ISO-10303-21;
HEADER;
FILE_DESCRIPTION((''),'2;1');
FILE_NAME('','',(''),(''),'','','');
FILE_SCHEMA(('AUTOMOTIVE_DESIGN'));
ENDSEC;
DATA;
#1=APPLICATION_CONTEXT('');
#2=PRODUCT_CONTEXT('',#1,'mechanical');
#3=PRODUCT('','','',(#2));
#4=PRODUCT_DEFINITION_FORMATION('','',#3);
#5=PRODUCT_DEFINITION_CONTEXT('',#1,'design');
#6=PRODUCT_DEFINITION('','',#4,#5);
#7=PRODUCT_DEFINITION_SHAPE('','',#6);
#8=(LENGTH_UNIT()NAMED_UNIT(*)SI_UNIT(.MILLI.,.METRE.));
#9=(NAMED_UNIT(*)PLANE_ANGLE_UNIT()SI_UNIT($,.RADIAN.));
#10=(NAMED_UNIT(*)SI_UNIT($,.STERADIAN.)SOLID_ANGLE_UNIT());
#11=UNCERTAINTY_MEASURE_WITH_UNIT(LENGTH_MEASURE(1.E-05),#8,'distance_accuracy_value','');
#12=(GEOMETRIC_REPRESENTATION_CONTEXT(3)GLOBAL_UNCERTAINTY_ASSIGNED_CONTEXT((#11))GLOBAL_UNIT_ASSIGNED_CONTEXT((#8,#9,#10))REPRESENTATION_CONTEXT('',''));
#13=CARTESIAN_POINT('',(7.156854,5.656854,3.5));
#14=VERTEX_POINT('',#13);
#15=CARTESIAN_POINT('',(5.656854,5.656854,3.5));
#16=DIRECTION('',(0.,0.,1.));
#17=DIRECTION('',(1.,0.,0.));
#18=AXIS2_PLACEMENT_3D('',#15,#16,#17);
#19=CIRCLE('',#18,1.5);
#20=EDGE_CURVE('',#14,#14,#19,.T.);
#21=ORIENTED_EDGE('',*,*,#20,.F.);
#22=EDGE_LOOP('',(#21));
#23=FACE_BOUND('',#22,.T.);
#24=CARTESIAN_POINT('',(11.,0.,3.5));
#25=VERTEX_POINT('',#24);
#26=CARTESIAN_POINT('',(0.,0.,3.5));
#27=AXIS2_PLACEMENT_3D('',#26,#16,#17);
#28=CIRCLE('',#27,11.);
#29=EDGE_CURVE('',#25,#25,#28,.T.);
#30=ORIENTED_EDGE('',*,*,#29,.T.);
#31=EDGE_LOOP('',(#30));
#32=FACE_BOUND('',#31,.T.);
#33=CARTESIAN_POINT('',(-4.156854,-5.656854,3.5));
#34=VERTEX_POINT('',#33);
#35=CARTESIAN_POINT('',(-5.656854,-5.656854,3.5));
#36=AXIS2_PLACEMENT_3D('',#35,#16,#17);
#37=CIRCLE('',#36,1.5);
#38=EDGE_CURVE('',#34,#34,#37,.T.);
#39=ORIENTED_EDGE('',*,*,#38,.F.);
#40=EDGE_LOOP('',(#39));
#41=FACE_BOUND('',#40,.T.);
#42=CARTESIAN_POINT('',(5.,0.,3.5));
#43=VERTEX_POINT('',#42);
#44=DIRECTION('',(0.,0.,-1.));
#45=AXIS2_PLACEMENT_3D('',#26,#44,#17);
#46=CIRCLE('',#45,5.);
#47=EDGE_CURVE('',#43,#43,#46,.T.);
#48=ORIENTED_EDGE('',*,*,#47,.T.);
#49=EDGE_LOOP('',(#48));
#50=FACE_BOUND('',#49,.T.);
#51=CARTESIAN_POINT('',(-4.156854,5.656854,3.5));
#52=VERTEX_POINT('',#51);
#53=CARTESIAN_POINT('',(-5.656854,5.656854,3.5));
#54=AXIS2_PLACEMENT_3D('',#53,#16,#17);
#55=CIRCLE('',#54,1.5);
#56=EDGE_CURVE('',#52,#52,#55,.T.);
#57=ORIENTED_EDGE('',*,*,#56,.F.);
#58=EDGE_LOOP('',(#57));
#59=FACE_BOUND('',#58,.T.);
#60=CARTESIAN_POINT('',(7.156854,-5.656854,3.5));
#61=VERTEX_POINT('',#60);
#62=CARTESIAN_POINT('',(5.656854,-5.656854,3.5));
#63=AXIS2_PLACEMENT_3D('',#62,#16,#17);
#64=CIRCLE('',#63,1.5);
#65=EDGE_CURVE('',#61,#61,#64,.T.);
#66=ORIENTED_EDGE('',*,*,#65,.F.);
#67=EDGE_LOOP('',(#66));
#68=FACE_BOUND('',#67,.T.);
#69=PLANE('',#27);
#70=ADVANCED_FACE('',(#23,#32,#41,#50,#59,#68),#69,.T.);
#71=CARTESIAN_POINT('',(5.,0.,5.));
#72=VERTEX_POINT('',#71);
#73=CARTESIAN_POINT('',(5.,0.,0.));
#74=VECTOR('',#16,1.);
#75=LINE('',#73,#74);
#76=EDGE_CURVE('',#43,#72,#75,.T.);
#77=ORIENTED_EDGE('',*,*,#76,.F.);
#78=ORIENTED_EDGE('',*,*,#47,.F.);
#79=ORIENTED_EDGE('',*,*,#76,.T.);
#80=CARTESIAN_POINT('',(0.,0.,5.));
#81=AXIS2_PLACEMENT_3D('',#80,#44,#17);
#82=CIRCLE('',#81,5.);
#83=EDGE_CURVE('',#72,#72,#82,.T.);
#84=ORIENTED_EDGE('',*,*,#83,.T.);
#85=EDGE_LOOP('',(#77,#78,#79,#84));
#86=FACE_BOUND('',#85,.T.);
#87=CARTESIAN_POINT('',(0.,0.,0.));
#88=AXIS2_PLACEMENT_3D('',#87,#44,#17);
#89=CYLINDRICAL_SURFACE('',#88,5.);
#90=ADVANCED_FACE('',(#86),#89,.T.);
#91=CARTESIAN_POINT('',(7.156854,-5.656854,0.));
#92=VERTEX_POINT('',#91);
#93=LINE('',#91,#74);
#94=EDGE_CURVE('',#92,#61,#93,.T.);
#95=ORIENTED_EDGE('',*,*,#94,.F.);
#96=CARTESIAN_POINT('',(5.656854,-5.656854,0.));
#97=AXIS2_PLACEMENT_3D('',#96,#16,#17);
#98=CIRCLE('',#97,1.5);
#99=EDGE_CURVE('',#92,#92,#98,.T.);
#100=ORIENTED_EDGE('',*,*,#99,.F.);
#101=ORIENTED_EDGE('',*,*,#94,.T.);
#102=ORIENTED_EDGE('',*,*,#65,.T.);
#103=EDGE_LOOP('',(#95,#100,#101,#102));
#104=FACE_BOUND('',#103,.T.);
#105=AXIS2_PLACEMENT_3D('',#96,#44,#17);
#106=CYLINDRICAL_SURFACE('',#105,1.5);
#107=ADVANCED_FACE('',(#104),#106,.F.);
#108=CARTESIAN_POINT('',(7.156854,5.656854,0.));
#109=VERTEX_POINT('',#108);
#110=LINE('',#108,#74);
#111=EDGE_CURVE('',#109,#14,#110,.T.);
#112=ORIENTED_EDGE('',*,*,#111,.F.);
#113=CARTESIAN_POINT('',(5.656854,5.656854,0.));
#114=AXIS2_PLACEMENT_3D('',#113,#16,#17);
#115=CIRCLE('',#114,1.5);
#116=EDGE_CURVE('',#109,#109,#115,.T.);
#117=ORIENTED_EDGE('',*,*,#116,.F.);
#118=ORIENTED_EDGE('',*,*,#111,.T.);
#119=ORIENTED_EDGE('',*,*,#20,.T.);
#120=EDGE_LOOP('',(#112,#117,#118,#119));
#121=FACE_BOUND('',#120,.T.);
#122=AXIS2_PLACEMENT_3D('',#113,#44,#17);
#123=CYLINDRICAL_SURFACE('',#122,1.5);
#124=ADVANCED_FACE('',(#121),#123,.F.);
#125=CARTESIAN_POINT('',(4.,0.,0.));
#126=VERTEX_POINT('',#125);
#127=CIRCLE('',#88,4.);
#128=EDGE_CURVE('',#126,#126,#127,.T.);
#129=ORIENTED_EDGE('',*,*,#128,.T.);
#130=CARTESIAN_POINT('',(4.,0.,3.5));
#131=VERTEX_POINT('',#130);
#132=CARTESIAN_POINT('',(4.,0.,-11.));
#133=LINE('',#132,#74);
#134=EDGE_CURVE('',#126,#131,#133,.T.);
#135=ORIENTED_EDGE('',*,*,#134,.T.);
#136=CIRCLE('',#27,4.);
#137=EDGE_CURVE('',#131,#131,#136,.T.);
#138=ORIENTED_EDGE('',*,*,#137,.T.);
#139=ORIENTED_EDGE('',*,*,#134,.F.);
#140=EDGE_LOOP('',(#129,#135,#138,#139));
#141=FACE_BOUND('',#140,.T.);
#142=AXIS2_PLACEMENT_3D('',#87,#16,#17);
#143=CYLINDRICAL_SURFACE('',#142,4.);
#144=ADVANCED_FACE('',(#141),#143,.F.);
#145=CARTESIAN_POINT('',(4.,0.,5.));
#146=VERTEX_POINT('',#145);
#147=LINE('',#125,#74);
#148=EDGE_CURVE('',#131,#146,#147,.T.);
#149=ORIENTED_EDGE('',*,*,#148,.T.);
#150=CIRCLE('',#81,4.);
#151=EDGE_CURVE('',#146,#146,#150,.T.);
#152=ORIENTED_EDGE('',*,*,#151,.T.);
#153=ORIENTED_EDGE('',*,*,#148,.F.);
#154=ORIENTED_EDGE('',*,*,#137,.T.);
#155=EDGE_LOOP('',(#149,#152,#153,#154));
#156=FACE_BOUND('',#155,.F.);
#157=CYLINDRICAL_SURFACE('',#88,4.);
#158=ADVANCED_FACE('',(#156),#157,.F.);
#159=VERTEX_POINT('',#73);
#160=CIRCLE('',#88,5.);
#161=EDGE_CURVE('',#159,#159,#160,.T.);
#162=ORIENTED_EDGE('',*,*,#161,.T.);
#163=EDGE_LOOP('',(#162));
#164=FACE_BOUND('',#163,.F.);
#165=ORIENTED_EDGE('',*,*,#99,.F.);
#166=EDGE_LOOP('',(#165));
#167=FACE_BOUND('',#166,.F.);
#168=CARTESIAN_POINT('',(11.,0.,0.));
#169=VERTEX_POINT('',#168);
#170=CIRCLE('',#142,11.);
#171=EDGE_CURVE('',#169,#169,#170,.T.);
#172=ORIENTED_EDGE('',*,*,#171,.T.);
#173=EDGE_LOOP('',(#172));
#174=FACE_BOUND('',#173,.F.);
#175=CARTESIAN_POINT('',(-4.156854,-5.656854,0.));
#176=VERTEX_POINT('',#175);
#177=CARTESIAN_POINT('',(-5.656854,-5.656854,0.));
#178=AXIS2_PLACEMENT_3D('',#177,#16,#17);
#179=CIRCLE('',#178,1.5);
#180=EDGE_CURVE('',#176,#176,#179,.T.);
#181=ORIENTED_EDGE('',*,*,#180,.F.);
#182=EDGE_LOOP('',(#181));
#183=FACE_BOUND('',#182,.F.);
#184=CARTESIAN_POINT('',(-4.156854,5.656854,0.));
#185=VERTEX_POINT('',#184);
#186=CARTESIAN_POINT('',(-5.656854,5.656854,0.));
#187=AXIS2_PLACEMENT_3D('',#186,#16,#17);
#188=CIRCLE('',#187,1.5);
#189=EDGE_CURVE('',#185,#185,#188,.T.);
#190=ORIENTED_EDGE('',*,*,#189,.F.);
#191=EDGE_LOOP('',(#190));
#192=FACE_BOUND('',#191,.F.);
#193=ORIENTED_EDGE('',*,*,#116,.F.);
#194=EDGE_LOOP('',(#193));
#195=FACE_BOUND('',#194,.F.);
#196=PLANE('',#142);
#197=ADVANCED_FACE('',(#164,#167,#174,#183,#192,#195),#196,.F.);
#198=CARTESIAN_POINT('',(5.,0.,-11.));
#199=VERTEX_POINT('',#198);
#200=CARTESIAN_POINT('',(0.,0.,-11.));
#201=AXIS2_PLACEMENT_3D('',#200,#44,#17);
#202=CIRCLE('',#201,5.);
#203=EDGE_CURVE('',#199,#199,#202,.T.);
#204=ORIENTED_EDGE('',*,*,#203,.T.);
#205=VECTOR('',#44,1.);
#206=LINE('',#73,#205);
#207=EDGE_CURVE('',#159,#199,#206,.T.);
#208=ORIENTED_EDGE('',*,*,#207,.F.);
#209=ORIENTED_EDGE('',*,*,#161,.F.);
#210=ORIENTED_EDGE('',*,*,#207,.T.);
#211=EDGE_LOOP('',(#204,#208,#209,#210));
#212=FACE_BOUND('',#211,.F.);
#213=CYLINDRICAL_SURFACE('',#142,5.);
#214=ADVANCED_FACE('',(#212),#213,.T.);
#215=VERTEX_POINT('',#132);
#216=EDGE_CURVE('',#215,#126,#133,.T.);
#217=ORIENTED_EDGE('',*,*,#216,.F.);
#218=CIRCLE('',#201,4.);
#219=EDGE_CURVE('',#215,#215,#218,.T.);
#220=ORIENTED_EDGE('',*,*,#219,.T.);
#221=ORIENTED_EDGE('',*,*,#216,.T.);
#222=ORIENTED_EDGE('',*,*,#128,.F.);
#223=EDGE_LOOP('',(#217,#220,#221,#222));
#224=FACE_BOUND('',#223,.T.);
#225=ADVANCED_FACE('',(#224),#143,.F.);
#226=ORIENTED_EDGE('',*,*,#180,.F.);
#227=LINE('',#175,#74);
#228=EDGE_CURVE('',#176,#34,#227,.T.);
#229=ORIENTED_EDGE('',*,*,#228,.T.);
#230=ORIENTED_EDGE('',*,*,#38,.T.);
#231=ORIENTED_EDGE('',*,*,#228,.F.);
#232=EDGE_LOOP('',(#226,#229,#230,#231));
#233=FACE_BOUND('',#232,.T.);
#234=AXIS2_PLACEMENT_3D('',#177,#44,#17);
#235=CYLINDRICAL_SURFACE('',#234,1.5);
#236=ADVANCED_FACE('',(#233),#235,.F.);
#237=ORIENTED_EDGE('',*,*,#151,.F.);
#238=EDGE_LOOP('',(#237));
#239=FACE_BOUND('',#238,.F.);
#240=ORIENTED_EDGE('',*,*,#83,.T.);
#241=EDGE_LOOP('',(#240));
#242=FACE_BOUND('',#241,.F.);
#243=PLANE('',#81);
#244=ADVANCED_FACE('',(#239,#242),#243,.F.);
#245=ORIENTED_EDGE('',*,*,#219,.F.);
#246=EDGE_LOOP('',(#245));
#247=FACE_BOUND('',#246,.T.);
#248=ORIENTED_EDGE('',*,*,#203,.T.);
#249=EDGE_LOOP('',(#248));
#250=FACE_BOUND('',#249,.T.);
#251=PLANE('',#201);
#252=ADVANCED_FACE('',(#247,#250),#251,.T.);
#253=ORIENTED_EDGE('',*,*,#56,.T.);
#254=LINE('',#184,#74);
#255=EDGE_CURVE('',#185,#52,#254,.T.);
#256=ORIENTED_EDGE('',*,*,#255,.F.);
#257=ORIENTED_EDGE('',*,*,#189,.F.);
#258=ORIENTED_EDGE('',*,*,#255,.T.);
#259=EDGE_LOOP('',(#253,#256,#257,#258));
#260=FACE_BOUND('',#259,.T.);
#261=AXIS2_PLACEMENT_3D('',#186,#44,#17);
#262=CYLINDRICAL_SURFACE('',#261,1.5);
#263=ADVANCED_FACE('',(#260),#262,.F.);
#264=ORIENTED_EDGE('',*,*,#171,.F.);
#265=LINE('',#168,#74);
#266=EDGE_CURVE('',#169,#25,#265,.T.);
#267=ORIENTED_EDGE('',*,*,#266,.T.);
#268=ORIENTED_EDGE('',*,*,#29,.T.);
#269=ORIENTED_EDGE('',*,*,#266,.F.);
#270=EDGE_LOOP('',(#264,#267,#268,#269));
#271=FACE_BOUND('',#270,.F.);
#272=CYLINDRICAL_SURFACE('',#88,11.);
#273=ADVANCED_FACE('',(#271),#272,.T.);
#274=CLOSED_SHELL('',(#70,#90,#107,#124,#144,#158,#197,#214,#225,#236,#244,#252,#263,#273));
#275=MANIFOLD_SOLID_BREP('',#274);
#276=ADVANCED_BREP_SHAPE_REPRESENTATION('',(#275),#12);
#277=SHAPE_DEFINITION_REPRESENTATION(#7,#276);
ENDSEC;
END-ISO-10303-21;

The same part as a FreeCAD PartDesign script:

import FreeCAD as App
import Part
import Sketcher

V = App.Vector

doc = App.newDocument("Part")
body = doc.addObject("PartDesign::Body", "Body")

# Sketch on XY plane
sketch1 = doc.addObject("Sketcher::SketchObject", "Sketch")
body.addObject(sketch1)
sketch1.AttachmentSupport = (doc.XY_Plane, [""])
sketch1.MapMode = "FlatFace"
sketch1.addGeometry([
    Part.Circle(V(0, 0, 0), V(0, 0, 1), 11),  # 0
    Part.Circle(V(-5.656854, -5.656854, 0), V(0, 0, 1), 1.5),  # 1
    Part.Circle(V(5.656854, -5.656854, 0), V(0, 0, 1), 1.5),  # 2
    Part.Circle(V(-5.656854, 5.656854, 0), V(0, 0, 1), 1.5),  # 3
    Part.Circle(V(0, 0, 0), V(0, 0, 1), 4),  # 4
    Part.Circle(V(5.656854, 5.656854, 0), V(0, 0, 1), 1.5),  # 5
], False)
sketch1.addConstraint([
    Sketcher.Constraint("Coincident", 0, 3, -1, 1),
    Sketcher.Constraint("Coincident", 4, 3, -1, 1),
    Sketcher.Constraint("Equal", 1, 2),
    Sketcher.Constraint("Equal", 2, 3),
    Sketcher.Constraint("Equal", 3, 5),
    Sketcher.Constraint("Symmetric", 2, 3, 3, 3, -1, 1),
    Sketcher.Constraint("Symmetric", 1, 3, 5, 3, -1, 1),
    Sketcher.Constraint("Symmetric", 1, 3, 2, 3, -2),
    Sketcher.Constraint("Diameter", 0, 22.0),
    Sketcher.Constraint("Diameter", 1, 3.0),
    Sketcher.Constraint("Diameter", 4, 8.0),
    Sketcher.Constraint("DistanceX", 1, 3, -1, 1, 5.656854),
    Sketcher.Constraint("DistanceY", 1, 3, -1, 1, 5.656854),
])
pad1 = doc.addObject("PartDesign::Pad", "Pad")
body.addObject(pad1)
pad1.Profile = sketch1
pad1.Length = 3.5

# Sketch on XY plane
sketch2 = doc.addObject("Sketcher::SketchObject", "Sketch001")
body.addObject(sketch2)
sketch2.AttachmentSupport = (doc.XY_Plane, [""])
sketch2.MapMode = "FlatFace"
sketch2.addGeometry([
    Part.Circle(V(0, 0, 0), V(0, 0, 1), 5),
    Part.Circle(V(0, 0, 0), V(0, 0, 1), 4),
], False)
sketch2.addConstraint([
    Sketcher.Constraint("Coincident", 0, 3, -1, 1),
    Sketcher.Constraint("Coincident", 1, 3, -1, 1),
    Sketcher.Constraint("Diameter", 0, 10.0),
    Sketcher.Constraint("Diameter", 1, 8.0),
])
pad2 = doc.addObject("PartDesign::Pad", "Pad001")
body.addObject(pad2)
pad2.Profile = sketch2
pad2.Type = "TwoLengths"
pad2.Length = 11
pad2.Length2 = 5
pad2.Reversed = True

doc.recompute()
